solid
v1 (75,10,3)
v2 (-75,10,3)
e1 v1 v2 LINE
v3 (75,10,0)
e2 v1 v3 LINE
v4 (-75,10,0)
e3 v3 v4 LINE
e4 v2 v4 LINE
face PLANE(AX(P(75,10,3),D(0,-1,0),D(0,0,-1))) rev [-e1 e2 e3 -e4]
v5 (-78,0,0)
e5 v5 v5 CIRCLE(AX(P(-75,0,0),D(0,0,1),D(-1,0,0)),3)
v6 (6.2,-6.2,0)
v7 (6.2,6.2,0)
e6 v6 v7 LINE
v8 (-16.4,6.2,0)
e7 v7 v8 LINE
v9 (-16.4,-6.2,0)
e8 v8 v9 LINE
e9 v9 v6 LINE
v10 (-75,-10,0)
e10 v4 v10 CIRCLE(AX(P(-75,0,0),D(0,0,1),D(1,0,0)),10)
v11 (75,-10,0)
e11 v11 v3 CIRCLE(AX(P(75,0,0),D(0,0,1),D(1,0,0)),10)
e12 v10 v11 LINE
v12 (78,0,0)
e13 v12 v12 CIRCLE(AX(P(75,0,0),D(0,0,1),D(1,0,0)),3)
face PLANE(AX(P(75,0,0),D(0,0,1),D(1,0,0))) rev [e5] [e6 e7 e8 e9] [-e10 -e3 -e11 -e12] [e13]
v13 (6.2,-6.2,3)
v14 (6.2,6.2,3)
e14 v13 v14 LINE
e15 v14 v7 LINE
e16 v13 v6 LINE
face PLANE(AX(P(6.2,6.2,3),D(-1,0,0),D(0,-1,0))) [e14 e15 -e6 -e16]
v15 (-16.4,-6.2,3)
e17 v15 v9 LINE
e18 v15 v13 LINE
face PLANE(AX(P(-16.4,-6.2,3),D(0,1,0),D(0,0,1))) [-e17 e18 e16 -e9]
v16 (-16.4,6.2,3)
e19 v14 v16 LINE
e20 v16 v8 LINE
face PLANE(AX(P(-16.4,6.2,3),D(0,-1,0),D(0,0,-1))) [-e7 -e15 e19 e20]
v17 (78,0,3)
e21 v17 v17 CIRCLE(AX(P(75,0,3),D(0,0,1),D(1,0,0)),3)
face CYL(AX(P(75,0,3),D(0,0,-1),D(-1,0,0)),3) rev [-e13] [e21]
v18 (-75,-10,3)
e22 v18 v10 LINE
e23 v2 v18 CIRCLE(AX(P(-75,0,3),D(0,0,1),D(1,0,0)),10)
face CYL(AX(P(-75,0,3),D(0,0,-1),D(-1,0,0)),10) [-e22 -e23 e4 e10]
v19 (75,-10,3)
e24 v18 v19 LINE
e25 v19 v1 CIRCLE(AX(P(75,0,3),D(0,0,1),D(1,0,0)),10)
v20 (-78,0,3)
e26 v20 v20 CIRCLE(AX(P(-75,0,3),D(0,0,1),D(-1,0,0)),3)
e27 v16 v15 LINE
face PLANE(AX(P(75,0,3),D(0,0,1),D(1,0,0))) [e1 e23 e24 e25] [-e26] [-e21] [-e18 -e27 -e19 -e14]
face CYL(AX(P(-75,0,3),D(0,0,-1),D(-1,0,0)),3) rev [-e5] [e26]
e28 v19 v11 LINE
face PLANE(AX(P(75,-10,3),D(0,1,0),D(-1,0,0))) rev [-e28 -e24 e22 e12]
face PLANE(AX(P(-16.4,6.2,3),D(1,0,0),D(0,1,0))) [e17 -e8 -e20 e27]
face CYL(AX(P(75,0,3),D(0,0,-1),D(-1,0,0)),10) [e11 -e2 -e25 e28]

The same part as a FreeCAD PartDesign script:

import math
import FreeCAD as App
import Part
import Sketcher

V = App.Vector
Q = App.Units.Quantity

doc = App.newDocument("Part")
body = doc.addObject("PartDesign::Body", "Body")

sketch1 = body.newObject("Sketcher::SketchObject", "Sketch")
sketch1.AttachmentSupport = (doc.getObject("XY_Plane"), [""])
sketch1.MapMode = "FlatFace"
sketch1.addGeometry([
    Part.LineSegment(V(-75, -10, 0), V(75, -10, 0)),
    Part.ArcOfCircle(Part.Circle(V(75, 0, 0), V(0, 0, 1), 10), math.radians(-90), math.radians(90)),
    Part.LineSegment(V(75, 10, 0), V(-75, 10, 0)),
    Part.ArcOfCircle(Part.Circle(V(-75, 0, 0), V(0, 0, 1), 10), math.radians(90), math.radians(270)),
    Part.Circle(V(75, 0, 0), V(0, 0, 1), 3),
    Part.LineSegment(V(-16.4, -6.2, 0), V(-16.4, 6.2, 0)),
    Part.LineSegment(V(-16.4, 6.2, 0), V(6.2, 6.2, 0)),
    Part.LineSegment(V(6.2, 6.2, 0), V(6.2, -6.2, 0)),
    Part.LineSegment(V(6.2, -6.2, 0), V(-16.4, -6.2, 0)),
    Part.Circle(V(-75, 0, 0), V(0, 0, 1), 3),
], False)
sketch1.addConstraint([
    Sketcher.Constraint("Tangent", 0, 2, 1, 1),
    Sketcher.Constraint("Tangent", 1, 2, 2, 1),
    Sketcher.Constraint("Tangent", 2, 2, 3, 1),
    Sketcher.Constraint("Tangent", 3, 2, 0, 1),
    Sketcher.Constraint("Coincident", 5, 2, 6, 1),
    Sketcher.Constraint("Coincident", 6, 2, 7, 1),
    Sketcher.Constraint("Coincident", 7, 2, 8, 1),
    Sketcher.Constraint("Coincident", 8, 2, 5, 1),
    Sketcher.Constraint("Horizontal", 0),
    Sketcher.Constraint("Horizontal", 2),
    Sketcher.Constraint("Vertical", 5),
    Sketcher.Constraint("Horizontal", 6),
    Sketcher.Constraint("Vertical", 7),
    Sketcher.Constraint("Horizontal", 8),
    Sketcher.Constraint("Coincident", 4, 3, 1, 3),
    Sketcher.Constraint("Coincident", 9, 3, 3, 3),
    Sketcher.Constraint("Equal", 4, 9),
    Sketcher.Constraint("Symmetric", 1, 3, 3, 3, -1, 1),
    Sketcher.Constraint("Diameter", 4, Q("6 mm")),
    Sketcher.Constraint("Radius", 1, Q("10 mm")),
    Sketcher.Constraint("DistanceX", 0, 1, 0, 2, Q("150 mm")),
    Sketcher.Constraint("DistanceX", 6, 1, 6, 2, Q("22.6 mm")),
    Sketcher.Constraint("DistanceY", 5, 1, 5, 2, Q("12.4 mm")),
    Sketcher.Constraint("DistanceX", 5, 2, -1, 1, Q("16.4 mm")),
    Sketcher.Constraint("DistanceY", -1, 1, 5, 2, Q("6.2 mm")),
])
pad1 = body.newObject("PartDesign::Pad", "Pad")
pad1.Profile = sketch1
pad1.Length = 3

doc.recompute()
